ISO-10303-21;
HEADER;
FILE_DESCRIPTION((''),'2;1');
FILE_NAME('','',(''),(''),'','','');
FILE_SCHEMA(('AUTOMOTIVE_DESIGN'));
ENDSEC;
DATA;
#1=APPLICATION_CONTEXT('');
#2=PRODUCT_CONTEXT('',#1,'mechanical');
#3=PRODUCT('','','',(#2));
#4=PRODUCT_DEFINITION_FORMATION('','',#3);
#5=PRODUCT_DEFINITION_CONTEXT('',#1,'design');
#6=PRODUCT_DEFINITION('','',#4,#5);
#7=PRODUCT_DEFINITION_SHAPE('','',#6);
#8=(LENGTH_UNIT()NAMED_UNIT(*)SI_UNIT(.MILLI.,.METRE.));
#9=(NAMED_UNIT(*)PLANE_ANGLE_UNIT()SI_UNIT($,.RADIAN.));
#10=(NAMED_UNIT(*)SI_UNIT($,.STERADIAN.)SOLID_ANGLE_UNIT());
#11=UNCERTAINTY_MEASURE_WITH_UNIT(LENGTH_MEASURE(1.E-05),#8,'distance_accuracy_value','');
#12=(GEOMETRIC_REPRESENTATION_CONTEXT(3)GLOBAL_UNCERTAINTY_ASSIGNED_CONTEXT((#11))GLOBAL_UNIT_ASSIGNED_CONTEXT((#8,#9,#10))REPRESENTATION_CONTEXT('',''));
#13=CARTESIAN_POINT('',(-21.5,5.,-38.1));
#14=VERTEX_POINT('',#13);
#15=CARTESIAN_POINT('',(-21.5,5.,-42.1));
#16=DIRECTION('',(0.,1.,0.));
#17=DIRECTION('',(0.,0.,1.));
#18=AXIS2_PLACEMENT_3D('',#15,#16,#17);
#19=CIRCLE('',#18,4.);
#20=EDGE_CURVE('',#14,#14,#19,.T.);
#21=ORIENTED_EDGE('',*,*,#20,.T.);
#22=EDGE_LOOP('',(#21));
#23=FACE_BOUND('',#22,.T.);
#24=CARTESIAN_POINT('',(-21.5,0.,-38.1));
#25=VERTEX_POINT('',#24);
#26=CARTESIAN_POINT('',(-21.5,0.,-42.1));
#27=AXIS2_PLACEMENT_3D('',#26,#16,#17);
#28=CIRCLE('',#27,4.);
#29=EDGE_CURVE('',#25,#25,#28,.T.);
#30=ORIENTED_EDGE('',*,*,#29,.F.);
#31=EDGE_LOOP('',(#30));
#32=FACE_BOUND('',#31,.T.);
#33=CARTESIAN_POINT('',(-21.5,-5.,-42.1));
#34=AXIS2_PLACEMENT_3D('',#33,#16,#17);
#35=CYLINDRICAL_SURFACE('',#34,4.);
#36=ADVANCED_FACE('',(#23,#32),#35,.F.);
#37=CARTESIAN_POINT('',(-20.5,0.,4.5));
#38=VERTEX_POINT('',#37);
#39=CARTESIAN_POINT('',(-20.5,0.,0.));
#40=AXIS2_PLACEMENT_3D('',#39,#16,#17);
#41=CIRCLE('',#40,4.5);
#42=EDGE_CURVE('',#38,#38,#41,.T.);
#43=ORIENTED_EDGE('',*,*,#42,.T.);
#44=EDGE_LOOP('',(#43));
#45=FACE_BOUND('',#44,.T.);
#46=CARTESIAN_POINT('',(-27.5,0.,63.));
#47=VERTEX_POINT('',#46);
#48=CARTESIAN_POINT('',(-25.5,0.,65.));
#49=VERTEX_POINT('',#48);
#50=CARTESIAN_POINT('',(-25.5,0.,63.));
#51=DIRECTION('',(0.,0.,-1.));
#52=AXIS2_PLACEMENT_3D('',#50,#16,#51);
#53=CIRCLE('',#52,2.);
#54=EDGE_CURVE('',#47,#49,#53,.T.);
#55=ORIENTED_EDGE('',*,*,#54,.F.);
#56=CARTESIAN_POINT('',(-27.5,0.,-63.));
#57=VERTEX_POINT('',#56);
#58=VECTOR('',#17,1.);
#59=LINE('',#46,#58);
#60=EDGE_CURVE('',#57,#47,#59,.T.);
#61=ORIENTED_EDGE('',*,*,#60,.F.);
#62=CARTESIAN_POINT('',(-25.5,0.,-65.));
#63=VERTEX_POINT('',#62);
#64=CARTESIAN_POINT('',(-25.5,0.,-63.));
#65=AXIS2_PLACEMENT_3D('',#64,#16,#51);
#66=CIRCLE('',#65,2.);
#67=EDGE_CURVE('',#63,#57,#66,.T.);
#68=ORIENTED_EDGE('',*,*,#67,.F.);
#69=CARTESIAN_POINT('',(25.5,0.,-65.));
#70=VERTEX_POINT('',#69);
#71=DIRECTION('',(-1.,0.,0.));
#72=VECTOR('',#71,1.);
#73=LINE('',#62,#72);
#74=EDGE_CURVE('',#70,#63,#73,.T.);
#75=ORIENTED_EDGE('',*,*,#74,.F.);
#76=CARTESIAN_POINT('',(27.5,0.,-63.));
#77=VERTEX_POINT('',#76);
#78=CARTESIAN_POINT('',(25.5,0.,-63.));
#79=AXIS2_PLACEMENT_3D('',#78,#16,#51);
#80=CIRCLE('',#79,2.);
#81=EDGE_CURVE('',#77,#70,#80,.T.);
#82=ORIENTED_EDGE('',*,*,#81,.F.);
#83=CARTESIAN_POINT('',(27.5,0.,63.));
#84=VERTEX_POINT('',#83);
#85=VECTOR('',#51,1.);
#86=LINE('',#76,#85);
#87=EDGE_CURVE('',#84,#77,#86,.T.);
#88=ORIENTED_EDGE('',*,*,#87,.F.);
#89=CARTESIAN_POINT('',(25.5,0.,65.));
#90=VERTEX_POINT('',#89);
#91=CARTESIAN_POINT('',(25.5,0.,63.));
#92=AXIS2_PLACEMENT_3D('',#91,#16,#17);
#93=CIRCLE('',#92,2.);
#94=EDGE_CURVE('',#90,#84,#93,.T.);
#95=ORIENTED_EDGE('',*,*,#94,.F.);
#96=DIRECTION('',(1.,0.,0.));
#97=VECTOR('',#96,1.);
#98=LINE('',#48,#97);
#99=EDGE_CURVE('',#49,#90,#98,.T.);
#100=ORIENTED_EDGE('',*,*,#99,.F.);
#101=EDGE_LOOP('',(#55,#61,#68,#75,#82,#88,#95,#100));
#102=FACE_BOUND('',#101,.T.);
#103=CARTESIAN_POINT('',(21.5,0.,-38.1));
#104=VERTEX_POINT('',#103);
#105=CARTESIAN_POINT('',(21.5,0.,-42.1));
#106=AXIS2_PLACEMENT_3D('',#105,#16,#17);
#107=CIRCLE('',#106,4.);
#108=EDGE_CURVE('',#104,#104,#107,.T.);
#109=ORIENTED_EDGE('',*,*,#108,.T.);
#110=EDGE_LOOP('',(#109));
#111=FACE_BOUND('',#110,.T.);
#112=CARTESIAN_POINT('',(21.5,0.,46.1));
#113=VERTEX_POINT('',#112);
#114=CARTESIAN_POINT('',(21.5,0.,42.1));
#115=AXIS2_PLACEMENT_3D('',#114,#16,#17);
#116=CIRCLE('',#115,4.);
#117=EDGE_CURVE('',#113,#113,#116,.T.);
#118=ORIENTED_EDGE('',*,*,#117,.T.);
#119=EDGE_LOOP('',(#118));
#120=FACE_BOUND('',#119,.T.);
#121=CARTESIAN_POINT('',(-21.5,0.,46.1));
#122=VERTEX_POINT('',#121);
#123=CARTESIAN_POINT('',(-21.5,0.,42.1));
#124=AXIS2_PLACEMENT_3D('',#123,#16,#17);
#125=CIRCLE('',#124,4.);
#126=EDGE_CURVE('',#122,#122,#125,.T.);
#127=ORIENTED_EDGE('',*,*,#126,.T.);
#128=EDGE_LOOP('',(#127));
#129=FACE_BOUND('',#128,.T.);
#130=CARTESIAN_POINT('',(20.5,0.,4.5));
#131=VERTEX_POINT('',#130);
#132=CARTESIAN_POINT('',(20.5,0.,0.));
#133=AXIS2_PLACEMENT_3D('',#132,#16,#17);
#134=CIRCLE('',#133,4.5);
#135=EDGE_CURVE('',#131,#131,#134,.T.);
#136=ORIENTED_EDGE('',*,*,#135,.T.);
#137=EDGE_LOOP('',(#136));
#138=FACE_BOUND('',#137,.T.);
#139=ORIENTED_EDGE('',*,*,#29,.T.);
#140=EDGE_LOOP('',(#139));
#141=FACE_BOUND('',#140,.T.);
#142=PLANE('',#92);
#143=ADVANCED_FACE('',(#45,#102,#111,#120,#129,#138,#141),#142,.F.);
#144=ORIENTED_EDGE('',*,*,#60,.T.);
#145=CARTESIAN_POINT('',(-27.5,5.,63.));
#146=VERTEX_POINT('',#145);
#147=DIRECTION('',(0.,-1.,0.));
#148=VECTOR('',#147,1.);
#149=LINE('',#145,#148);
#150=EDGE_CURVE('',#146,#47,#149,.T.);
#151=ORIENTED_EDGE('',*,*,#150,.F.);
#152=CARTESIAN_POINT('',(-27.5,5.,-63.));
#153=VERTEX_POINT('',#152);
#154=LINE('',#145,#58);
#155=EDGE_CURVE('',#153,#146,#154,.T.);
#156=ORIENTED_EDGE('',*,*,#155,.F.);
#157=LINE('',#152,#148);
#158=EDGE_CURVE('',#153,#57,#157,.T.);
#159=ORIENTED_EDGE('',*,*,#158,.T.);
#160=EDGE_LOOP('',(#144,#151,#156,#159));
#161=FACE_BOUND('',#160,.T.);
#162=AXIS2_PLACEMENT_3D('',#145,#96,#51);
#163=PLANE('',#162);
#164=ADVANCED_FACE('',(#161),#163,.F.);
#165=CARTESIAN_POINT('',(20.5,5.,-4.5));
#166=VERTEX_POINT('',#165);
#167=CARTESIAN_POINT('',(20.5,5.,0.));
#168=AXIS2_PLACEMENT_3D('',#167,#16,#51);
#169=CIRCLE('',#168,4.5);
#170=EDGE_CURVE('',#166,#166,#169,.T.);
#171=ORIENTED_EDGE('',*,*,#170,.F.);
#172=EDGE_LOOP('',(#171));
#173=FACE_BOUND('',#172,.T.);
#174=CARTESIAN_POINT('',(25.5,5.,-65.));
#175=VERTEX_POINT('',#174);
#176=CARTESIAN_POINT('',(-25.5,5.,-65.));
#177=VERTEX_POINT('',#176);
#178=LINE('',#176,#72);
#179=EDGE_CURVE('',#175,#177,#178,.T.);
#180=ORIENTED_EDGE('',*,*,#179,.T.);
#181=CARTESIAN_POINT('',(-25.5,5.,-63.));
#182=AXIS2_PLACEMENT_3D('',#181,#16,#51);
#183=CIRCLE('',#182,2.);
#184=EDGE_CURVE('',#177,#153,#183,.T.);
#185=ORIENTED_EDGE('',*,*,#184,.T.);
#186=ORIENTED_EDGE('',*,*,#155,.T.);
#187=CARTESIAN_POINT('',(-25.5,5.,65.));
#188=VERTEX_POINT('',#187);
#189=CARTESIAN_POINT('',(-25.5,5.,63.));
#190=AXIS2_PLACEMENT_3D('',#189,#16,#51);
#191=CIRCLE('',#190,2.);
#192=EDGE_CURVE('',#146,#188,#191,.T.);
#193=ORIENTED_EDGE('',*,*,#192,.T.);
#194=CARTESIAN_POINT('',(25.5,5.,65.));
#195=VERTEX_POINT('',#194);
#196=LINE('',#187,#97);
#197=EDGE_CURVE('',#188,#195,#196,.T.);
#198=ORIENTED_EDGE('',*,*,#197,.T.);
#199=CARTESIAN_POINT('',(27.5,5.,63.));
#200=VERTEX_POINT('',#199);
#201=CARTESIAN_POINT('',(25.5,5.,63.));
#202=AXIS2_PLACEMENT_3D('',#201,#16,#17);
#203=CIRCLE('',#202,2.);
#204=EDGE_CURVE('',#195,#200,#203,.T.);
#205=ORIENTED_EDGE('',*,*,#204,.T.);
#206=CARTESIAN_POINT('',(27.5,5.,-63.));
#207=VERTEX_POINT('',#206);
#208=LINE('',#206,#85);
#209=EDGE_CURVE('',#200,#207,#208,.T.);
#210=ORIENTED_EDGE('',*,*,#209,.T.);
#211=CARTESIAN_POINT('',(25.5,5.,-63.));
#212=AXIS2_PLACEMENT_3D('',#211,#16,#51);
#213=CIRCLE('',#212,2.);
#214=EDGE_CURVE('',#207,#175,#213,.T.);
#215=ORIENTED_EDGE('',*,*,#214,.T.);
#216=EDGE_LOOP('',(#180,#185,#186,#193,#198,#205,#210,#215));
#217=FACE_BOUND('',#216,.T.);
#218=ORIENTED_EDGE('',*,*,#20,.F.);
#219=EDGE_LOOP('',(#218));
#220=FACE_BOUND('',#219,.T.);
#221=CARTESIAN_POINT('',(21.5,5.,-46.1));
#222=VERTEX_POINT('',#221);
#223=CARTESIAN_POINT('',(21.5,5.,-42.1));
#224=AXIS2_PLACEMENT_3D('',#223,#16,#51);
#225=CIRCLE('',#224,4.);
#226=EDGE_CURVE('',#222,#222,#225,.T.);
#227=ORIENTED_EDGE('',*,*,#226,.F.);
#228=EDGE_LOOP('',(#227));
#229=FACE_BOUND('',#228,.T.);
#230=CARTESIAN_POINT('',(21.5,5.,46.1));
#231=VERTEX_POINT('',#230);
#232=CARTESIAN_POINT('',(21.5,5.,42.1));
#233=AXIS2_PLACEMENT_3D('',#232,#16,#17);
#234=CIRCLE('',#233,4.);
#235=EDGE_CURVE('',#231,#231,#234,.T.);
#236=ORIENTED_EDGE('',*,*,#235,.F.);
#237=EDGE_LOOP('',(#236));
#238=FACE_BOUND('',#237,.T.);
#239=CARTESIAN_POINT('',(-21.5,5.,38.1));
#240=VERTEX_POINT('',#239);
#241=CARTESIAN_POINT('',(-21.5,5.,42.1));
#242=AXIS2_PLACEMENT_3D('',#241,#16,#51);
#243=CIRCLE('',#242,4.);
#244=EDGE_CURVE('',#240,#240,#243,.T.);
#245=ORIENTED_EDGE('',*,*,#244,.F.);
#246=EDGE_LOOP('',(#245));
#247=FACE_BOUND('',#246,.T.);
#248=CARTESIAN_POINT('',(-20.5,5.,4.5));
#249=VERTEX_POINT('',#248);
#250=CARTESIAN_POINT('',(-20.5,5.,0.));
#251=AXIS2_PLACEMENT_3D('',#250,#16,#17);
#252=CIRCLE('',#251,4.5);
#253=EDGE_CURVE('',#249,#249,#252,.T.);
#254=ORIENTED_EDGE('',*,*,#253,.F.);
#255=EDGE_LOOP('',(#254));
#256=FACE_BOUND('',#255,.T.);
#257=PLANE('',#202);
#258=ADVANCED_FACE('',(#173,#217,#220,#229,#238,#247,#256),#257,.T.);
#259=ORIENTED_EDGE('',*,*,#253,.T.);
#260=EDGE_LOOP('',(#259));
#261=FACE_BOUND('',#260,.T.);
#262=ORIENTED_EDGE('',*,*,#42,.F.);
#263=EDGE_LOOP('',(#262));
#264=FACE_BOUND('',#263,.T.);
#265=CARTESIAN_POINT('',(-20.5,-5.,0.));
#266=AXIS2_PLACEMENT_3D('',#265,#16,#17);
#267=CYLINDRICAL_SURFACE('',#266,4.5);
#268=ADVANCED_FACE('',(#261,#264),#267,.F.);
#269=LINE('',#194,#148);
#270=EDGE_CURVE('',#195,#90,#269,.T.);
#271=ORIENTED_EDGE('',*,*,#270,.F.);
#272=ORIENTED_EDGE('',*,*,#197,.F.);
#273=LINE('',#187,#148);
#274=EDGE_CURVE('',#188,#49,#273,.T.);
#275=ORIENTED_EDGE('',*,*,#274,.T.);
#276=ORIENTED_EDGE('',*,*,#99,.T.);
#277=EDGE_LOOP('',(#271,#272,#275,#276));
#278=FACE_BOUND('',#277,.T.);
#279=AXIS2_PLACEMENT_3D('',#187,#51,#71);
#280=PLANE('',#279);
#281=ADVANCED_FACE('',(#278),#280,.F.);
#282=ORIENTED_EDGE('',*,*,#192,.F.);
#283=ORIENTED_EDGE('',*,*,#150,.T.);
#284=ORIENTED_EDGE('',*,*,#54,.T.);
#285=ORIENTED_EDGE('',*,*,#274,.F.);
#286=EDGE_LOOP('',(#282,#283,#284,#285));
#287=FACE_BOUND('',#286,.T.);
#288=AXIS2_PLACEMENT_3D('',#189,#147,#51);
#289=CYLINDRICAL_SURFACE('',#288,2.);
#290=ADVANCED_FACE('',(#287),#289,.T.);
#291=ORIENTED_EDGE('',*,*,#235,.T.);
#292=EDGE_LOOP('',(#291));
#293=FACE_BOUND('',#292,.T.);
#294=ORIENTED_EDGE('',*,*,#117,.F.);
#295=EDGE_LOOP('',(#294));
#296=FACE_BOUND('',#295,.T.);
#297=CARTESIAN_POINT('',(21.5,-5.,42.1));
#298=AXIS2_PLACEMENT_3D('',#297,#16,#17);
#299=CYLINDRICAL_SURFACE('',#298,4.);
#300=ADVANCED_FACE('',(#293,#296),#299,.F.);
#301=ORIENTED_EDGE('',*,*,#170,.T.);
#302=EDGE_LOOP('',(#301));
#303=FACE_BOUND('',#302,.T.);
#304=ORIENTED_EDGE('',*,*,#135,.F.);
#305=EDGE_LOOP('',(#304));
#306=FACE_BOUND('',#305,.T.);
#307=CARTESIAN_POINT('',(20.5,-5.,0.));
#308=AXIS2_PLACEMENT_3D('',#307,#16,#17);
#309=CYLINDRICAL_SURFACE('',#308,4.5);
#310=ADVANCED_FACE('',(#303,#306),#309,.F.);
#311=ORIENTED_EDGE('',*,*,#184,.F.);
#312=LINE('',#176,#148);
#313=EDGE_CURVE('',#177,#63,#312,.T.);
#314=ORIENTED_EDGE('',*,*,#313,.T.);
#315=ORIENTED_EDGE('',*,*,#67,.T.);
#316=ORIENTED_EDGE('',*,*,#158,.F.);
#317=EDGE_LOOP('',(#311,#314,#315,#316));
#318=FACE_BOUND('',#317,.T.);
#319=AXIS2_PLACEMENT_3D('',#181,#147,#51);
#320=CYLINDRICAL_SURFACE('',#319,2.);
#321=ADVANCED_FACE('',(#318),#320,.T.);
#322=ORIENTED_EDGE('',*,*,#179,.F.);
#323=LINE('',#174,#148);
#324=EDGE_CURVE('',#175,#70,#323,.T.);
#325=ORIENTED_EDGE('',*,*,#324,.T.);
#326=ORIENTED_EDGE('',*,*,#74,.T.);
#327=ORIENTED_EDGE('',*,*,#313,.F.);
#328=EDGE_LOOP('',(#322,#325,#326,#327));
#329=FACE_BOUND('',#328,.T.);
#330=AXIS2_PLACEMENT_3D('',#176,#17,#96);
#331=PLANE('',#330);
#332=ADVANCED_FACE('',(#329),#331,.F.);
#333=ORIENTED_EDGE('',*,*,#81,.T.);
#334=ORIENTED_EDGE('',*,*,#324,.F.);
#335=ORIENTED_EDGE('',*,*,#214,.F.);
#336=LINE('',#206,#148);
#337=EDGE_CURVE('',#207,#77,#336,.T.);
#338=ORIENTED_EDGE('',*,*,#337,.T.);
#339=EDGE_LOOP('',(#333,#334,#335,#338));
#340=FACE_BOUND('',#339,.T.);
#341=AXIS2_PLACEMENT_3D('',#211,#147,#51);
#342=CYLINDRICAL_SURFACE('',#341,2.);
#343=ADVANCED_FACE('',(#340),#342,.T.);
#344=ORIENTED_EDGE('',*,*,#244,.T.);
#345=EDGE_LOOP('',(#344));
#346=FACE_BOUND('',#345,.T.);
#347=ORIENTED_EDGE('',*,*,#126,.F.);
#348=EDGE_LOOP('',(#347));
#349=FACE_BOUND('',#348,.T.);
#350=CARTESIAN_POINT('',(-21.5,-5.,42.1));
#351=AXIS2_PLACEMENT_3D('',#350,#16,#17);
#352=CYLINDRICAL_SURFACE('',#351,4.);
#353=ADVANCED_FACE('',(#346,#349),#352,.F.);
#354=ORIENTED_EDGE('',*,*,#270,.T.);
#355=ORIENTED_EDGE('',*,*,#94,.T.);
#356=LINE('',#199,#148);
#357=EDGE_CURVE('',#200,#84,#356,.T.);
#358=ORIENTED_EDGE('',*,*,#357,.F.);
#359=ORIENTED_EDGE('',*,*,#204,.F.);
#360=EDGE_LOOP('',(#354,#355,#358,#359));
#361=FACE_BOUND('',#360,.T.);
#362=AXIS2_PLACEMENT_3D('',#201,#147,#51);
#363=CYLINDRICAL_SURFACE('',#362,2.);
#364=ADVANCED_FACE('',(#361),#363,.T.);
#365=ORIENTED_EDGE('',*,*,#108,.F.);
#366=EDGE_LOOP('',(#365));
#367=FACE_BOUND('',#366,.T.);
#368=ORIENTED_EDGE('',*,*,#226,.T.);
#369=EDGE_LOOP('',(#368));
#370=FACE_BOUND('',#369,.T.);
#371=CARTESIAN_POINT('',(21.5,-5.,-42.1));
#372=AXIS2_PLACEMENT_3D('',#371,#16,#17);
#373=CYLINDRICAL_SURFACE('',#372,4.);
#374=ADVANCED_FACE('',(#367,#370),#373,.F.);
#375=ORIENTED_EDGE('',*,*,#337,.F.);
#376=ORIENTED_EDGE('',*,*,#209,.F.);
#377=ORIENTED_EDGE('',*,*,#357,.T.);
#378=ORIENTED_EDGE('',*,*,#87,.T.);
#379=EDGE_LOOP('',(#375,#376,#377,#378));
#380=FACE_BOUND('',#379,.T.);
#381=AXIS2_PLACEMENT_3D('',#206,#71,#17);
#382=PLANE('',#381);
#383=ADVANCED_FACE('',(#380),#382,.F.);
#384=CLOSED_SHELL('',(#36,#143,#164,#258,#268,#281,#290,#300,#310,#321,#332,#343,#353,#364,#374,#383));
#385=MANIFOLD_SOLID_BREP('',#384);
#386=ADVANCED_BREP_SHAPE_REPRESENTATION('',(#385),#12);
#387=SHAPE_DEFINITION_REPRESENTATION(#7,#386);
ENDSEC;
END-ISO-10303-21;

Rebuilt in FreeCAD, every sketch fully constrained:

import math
import FreeCAD as App
import Part
import Sketcher
Q = App.Units.Quantity

doc = App.newDocument("Part")
params = doc.addObject("Spreadsheet::Sheet", "Params")
for row, (alias, value) in enumerate([
    ("sketch1_radius", "2 mm"),
    ("sketch1_width", "51 mm"),
    ("sketch1_height", "126 mm"),
    ("pad1_length", "5 mm"),
    ("sketch2_diameter", "9 mm"),
    ("sketch2_diameter2", "8 mm"),
    ("pocket1_length", "10 mm"),
], start=1):
    params.set(f"A{row}", alias)
    params.set(f"B{row}", "=" + value)
    params.setAlias(f"B{row}", alias)

body = doc.addObject("PartDesign::Body", "Body")

# Sketch on XZ plane
sketch1 = doc.addObject("Sketcher::SketchObject", "Sketch")
body.addObject(sketch1)
sketch1.AttachmentSupport = (doc.XZ_Plane, [""])
sketch1.MapMode = "FlatFace"
sketch1.addGeometry([
    Part.LineSegment(App.Vector(-27.5, -63, 0), App.Vector(-27.5, 63, 0)),  # 0
    Part.ArcOfCircle(Part.Circle(App.Vector(-25.5, 63, 0), App.Vector(0, 0, 1), 2), math.radians(90), math.radians(180)),  # 1
    Part.LineSegment(App.Vector(-25.5, 65, 0), App.Vector(25.5, 65, 0)),  # 2
    Part.ArcOfCircle(Part.Circle(App.Vector(25.5, 63, 0), App.Vector(0, 0, 1), 2), math.radians(0), math.radians(90)),  # 3
    Part.LineSegment(App.Vector(27.5, 63, 0), App.Vector(27.5, -63, 0)),  # 4
    Part.ArcOfCircle(Part.Circle(App.Vector(25.5, -63, 0), App.Vector(0, 0, 1), 2), math.radians(-90), math.radians(0)),  # 5
    Part.LineSegment(App.Vector(25.5, -65, 0), App.Vector(-25.5, -65, 0)),  # 6
    Part.ArcOfCircle(Part.Circle(App.Vector(-25.5, -63, 0), App.Vector(0, 0, 1), 2), math.radians(-180), math.radians(-90)),  # 7
], False)
sketch1.addConstraint([
    Sketcher.Constraint("Tangent", 0, 2, 1, 2),
    Sketcher.Constraint("Tangent", 1, 1, 2, 1),
    Sketcher.Constraint("Tangent", 2, 2, 3, 2),
    Sketcher.Constraint("Tangent", 3, 1, 4, 1),
    Sketcher.Constraint("Tangent", 4, 2, 5, 2),
    Sketcher.Constraint("Tangent", 5, 1, 6, 1),
    Sketcher.Constraint("Tangent", 6, 2, 7, 2),
    Sketcher.Constraint("Tangent", 7, 1, 0, 1),
    Sketcher.Constraint("Vertical", 0),
    Sketcher.Constraint("Horizontal", 2),
    Sketcher.Constraint("Vertical", 4),
    Sketcher.Constraint("Horizontal", 6),
    Sketcher.Constraint("Equal", 1, 3),
    Sketcher.Constraint("Equal", 3, 5),
    Sketcher.Constraint("Equal", 5, 7),
    Sketcher.Constraint("Symmetric", 1, 3, 5, 3, -1, 1),
    Sketcher.Constraint("Radius", 1, Q("2 mm")),
    Sketcher.Constraint("DistanceX", 2, 1, 2, 2, Q("51 mm")),
    Sketcher.Constraint("DistanceY", 0, 1, 0, 2, Q("126 mm")),
])
sketch1.setExpression("Constraints[16]", "Params.sketch1_radius")
sketch1.setExpression("Constraints[17]", "Params.sketch1_width")
sketch1.setExpression("Constraints[18]", "Params.sketch1_height")
pad1 = doc.addObject("PartDesign::Pad", "Pad")
body.addObject(pad1)
pad1.Profile = sketch1
pad1.setExpression("Length", "Params.pad1_length")
pad1.Reversed = True

# Sketch on XZ plane
sketch2 = doc.addObject("Sketcher::SketchObject", "Sketch001")
body.addObject(sketch2)
sketch2.AttachmentSupport = (doc.XZ_Plane, [""])
sketch2.MapMode = "FlatFace"
sketch2.AttachmentOffset = App.Placement(App.Vector(0, 0, -5), App.Rotation())
sketch2.addGeometry([
    Part.Circle(App.Vector(-20.5, 0, 0), App.Vector(0, 0, 1), 4.5),  # 0
    Part.Circle(App.Vector(20.5, 0, 0), App.Vector(0, 0, 1), 4.5),  # 1
    Part.Circle(App.Vector(-21.5, -42.1, 0), App.Vector(0, 0, 1), 4),  # 2
    Part.Circle(App.Vector(-21.5, 42.1, 0), App.Vector(0, 0, 1), 4),  # 3
    Part.Circle(App.Vector(21.5, -42.1, 0), App.Vector(0, 0, 1), 4),  # 4
    Part.Circle(App.Vector(21.5, 42.1, 0), App.Vector(0, 0, 1), 4),  # 5
], False)
sketch2.addConstraint([
    Sketcher.Constraint("Equal", 0, 1),
    Sketcher.Constraint("Equal", 2, 3),
    Sketcher.Constraint("Equal", 3, 4),
    Sketcher.Constraint("Equal", 4, 5),
    Sketcher.Constraint("Symmetric", 0, 3, 1, 3, -1, 1),
    Sketcher.Constraint("Symmetric", 3, 3, 4, 3, -1, 1),
    Sketcher.Constraint("Symmetric", 2, 3, 5, 3, -1, 1),
    Sketcher.Constraint("Symmetric", 2, 3, 4, 3, -2),
    Sketcher.Constraint("PointOnObject", 0, 3, -1),
    Sketcher.Constraint("Diameter", 0, Q("9 mm")),
    Sketcher.Constraint("Diameter", 2, Q("8 mm")),
    Sketcher.Constraint("DistanceX", 0, 3, 1, 3, Q("41 mm")),
    Sketcher.Constraint("DistanceX", 2, 3, 0, 3, Q("1 mm")),
    Sketcher.Constraint("DistanceY", 2, 3, -1, 1, Q("42.1 mm")),
])
sketch2.setExpression("Constraints[9]", "Params.sketch2_diameter")
sketch2.setExpression("Constraints[10]", "Params.sketch2_diameter2")
pocket1 = doc.addObject("PartDesign::Pocket", "Pocket")
body.addObject(pocket1)
pocket1.Profile = sketch2
pocket1.setExpression("Length", "Params.pocket1_length")
pocket1.Reversed = True

doc.recompute()
